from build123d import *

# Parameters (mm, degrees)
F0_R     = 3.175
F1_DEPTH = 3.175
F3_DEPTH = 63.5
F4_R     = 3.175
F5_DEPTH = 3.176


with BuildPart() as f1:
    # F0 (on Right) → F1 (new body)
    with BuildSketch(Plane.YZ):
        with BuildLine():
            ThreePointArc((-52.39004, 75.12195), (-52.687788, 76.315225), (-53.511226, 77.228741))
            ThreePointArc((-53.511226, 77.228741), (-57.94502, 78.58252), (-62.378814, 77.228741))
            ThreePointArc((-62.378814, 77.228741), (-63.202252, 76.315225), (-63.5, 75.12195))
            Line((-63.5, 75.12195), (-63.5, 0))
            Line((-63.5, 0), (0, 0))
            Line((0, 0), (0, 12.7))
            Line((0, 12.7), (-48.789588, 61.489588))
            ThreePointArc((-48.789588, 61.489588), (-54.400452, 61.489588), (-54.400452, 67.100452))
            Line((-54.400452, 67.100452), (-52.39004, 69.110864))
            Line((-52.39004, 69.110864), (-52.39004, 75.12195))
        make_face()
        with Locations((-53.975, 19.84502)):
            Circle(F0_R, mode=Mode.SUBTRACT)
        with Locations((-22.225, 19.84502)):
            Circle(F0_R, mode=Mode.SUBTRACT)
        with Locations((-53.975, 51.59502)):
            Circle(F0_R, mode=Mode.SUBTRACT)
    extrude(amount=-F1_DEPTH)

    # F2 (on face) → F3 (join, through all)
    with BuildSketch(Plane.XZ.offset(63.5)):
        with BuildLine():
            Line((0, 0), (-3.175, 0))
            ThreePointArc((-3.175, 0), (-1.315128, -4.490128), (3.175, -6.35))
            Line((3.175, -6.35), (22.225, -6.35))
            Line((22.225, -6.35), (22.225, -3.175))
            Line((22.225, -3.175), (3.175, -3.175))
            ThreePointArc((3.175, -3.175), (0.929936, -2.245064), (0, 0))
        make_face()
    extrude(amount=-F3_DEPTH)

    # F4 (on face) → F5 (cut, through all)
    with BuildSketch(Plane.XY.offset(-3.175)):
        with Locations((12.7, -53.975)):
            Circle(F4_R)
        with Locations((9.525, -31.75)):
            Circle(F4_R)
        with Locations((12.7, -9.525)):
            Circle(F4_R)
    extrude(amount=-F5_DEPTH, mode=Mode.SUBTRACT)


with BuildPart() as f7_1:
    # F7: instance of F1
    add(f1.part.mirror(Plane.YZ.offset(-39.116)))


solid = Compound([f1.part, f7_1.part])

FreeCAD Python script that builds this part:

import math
import FreeCAD as App
import Part
import Sketcher

V = App.Vector
Q = App.Units.Quantity

doc = App.newDocument("Part")
body = doc.addObject("PartDesign::Body", "Body")

# Sketch on YZ plane
sketch1 = body.newObject("Sketcher::SketchObject", "Sketch")
sketch1.AttachmentSupport = (doc.getObject("YZ_Plane"), [""])
sketch1.MapMode = "FlatFace"
sketch1.addGeometry([
    Part.ArcOfCircle(Part.Circle(V(-54.9, 75.1, 0), V(0, 0, 1), 2.5), math.radians(0), math.radians(56)),  # 0
    Part.ArcOfCircle(Part.Circle(V(-57.9, 70.6, 0), V(0, 0, 1), 7.9), math.radians(56), math.radians(124)),  # 1
    Part.ArcOfCircle(Part.Circle(V(-61, 75.1, 0), V(0, 0, 1), 2.5), math.radians(124), math.radians(180)),  # 2
    Part.LineSegment(V(-63.5, 75.1, 0), V(-63.5, 0, 0)),  # 3
    Part.LineSegment(V(-63.5, 0, 0), V(0, 0, 0)),  # 4
    Part.LineSegment(V(0, 0, 0), V(0, 12.7, 0)),  # 5
    Part.LineSegment(V(0, 12.7, 0), V(-48.8, 61.5, 0)),  # 6
    Part.ArcOfCircle(Part.Circle(V(-51.6, 64.3, 0), V(0, 0, 1), 4), math.radians(135), math.radians(315)),  # 7
    Part.LineSegment(V(-54.4, 67.1, 0), V(-52.4, 69.1, 0)),  # 8
    Part.LineSegment(V(-52.4, 69.1, 0), V(-52.4, 75.1, 0)),  # 9
    Part.Circle(V(-54, 19.8, 0), V(0, 0, 1), 3.2),  # 10
    Part.Circle(V(-22.2, 19.8, 0), V(0, 0, 1), 3.2),  # 11
    Part.Circle(V(-54, 51.6, 0), V(0, 0, 1), 3.2),  # 12
], False)
sketch1.addConstraint([
    Sketcher.Constraint("Tangent", 0, 2, 1, 1),
    Sketcher.Constraint("Tangent", 1, 2, 2, 1),
    Sketcher.Constraint("Tangent", 2, 2, 3, 1),
    Sketcher.Constraint("Coincident", 3, 2, 4, 1),
    Sketcher.Constraint("Coincident", 4, 2, 5, 1),
    Sketcher.Constraint("Coincident", 5, 2, 6, 1),
    Sketcher.Constraint("Coincident", 6, 2, 7, 2),
    Sketcher.Constraint("Tangent", 7, 1, 8, 1),
    Sketcher.Constraint("Coincident", 8, 2, 9, 1),
    Sketcher.Constraint("Tangent", 9, 2, 0, 1),
    Sketcher.Constraint("Vertical", 3),
    Sketcher.Constraint("Horizontal", 4),
    Sketcher.Constraint("Vertical", 5),
    Sketcher.Constraint("Vertical", 9),
    Sketcher.Constraint("Coincident", 4, 2, -1, 1),
    Sketcher.Constraint("Equal", 0, 2),
    Sketcher.Constraint("Equal", 10, 11),
    Sketcher.Constraint("Equal", 11, 12),
    Sketcher.Constraint("Perpendicular", 6, 8),
    Sketcher.Constraint("Horizontal", 0, 3, 2, 3),
    Sketcher.Constraint("Horizontal", 10, 3, 11, 3),
    Sketcher.Constraint("Vertical", 10, 3, 12, 3),
    Sketcher.Constraint("Radius", 0, Q("0.1000001 in")),
    Sketcher.Constraint("Diameter", 10, Q("0.25 in")),
    Sketcher.Constraint("DistanceX", 4, 1, 4, 2, Q("2.5 in")),
    Sketcher.Constraint("DistanceY", 5, 1, 5, 2, Q("0.5 in")),
    Sketcher.Constraint("Angle", 6, Q("135 deg")),
    Sketcher.Constraint("Radius", 1, Q("0.3125001 in")),
    Sketcher.Constraint("DistanceY", 10, 3, 1, 3, Q("1.9999999 in")),
    Sketcher.Constraint("Radius", 7, Q("0.1562 in")),
    Sketcher.Constraint("DistanceY", 12, 3, 7, 3, Q("0.5 in")),
    Sketcher.Constraint("DistanceX", 1, 3, 7, 3, Q("0.25 in")),
    Sketcher.Constraint("DistanceY", 7, 3, 1, 3, Q("0.2499999 in")),
    Sketcher.Constraint("DistanceX", 10, 3, 11, 3, Q("1.25 in")),
    Sketcher.Constraint("DistanceX", 10, 3, -1, 1, Q("2.125 in")),
    Sketcher.Constraint("DistanceX", 0, 3, -1, 1, Q("2.1626001 in")),
    Sketcher.Constraint("DistanceY", -1, 1, 1, 3, Q("2.7812999 in")),
])
pad1 = body.newObject("PartDesign::Pad", "Pad")
pad1.Profile = sketch1
pad1.Length = Q("0.125 in")
pad1.Reversed = True

# Sketch on XZ plane
sketch2 = body.newObject("Sketcher::SketchObject", "Sketch001")
sketch2.AttachmentSupport = (doc.getObject("XZ_Plane"), [""])
sketch2.MapMode = "FlatFace"
sketch2.AttachmentOffset = App.Placement(V(0, 0, 2.5 * 25.4), App.Rotation())
sketch2.addGeometry([
    Part.LineSegment(V(0, 0, 0), V(-3.2, 0, 0)),  # 0
    Part.ArcOfCircle(Part.Circle(V(3.2, 0, 0), V(0, 0, 1), 6.4), math.radians(-180), math.radians(-90)),  # 1
    Part.LineSegment(V(3.2, -6.3, 0), V(22.2, -6.3, 0)),  # 2
    Part.LineSegment(V(22.2, -6.3, 0), V(22.2, -3.2, 0)),  # 3
    Part.LineSegment(V(22.2, -3.2, 0), V(3.2, -3.2, 0)),  # 4
    Part.ArcOfCircle(Part.Circle(V(3.2, 0, 0), V(0, 0, 1), 3.2), math.radians(-180), math.radians(-90)),  # 5
], False)
sketch2.addConstraint([
    Sketcher.Constraint("Coincident", 0, 2, 1, 1),
    Sketcher.Constraint("Tangent", 1, 2, 2, 1),
    Sketcher.Constraint("Coincident", 2, 2, 3, 1),
    Sketcher.Constraint("Coincident", 3, 2, 4, 1),
    Sketcher.Constraint("Tangent", 4, 2, 5, 2),
    Sketcher.Constraint("Coincident", 5, 1, 0, 1),
    Sketcher.Constraint("Horizontal", 0),
    Sketcher.Constraint("Horizontal", 2),
    Sketcher.Constraint("Vertical", 3),
    Sketcher.Constraint("Horizontal", 4),
    Sketcher.Constraint("Coincident", 5, 1, -1, 1),
    Sketcher.Constraint("Coincident", 5, 3, 1, 3),
    Sketcher.Constraint("PointOnObject", 1, 3, -1),
    Sketcher.Constraint("Radius", 1, Q("0.25 in")),
    Sketcher.Constraint("Radius", 5, Q("0.125 in")),
    Sketcher.Constraint("DistanceX", 0, 2, 2, 2, Q("1 in")),
])
pad2 = body.newObject("PartDesign::Pad", "Pad001")
pad2.Profile = sketch2
pad2.Length = Q("2.5 in")
pad2.Reversed = True

# Sketch on XY plane
sketch3 = body.newObject("Sketcher::SketchObject", "Sketch002")
sketch3.AttachmentSupport = (doc.getObject("XY_Plane"), [""])
sketch3.MapMode = "FlatFace"
sketch3.AttachmentOffset = App.Placement(V(0, 0, -0.125 * 25.4), App.Rotation())
sketch3.addGeometry([
    Part.Circle(V(12.7, -54, 0), V(0, 0, 1), 3.2),
    Part.Circle(V(9.5, -31.8, 0), V(0, 0, 1), 3.2),
    Part.Circle(V(12.7, -9.5, 0), V(0, 0, 1), 3.2),
], False)
sketch3.addConstraint([
    Sketcher.Constraint("Equal", 0, 1),
    Sketcher.Constraint("Equal", 1, 2),
    Sketcher.Constraint("Vertical", 0, 3, 2, 3),
    Sketcher.Constraint("Diameter", 0, Q("0.25 in")),
    Sketcher.Constraint("DistanceX", -1, 1, 0, 3, Q("0.5 in")),
    Sketcher.Constraint("DistanceY", 1, 3, -1, 1, Q("1.25 in")),
    Sketcher.Constraint("DistanceY", 0, 3, 2, 3, Q("1.75 in")),
    Sketcher.Constraint("DistanceY", 0, 3, -1, 1, Q("2.125 in")),
    Sketcher.Constraint("DistanceX", -1, 1, 1, 3, Q("0.375 in")),
])
pocket1 = body.newObject("PartDesign::Pocket", "Pocket")
pocket1.Profile = sketch3
pocket1.Type = "ThroughAll"
body2 = doc.addObject("PartDesign::Body", "Body001")
doc.recompute()

mirroring = doc.addObject("Part::Mirroring", "Mirroring")
mirroring.Source = body
mirroring.Base = V(-39.116, 0, 0)
mirroring.Normal = V(1, 0, 0)
body2.BaseFeature = mirroring
doc.recompute()
mirroring.Visibility = False

doc.recompute()
